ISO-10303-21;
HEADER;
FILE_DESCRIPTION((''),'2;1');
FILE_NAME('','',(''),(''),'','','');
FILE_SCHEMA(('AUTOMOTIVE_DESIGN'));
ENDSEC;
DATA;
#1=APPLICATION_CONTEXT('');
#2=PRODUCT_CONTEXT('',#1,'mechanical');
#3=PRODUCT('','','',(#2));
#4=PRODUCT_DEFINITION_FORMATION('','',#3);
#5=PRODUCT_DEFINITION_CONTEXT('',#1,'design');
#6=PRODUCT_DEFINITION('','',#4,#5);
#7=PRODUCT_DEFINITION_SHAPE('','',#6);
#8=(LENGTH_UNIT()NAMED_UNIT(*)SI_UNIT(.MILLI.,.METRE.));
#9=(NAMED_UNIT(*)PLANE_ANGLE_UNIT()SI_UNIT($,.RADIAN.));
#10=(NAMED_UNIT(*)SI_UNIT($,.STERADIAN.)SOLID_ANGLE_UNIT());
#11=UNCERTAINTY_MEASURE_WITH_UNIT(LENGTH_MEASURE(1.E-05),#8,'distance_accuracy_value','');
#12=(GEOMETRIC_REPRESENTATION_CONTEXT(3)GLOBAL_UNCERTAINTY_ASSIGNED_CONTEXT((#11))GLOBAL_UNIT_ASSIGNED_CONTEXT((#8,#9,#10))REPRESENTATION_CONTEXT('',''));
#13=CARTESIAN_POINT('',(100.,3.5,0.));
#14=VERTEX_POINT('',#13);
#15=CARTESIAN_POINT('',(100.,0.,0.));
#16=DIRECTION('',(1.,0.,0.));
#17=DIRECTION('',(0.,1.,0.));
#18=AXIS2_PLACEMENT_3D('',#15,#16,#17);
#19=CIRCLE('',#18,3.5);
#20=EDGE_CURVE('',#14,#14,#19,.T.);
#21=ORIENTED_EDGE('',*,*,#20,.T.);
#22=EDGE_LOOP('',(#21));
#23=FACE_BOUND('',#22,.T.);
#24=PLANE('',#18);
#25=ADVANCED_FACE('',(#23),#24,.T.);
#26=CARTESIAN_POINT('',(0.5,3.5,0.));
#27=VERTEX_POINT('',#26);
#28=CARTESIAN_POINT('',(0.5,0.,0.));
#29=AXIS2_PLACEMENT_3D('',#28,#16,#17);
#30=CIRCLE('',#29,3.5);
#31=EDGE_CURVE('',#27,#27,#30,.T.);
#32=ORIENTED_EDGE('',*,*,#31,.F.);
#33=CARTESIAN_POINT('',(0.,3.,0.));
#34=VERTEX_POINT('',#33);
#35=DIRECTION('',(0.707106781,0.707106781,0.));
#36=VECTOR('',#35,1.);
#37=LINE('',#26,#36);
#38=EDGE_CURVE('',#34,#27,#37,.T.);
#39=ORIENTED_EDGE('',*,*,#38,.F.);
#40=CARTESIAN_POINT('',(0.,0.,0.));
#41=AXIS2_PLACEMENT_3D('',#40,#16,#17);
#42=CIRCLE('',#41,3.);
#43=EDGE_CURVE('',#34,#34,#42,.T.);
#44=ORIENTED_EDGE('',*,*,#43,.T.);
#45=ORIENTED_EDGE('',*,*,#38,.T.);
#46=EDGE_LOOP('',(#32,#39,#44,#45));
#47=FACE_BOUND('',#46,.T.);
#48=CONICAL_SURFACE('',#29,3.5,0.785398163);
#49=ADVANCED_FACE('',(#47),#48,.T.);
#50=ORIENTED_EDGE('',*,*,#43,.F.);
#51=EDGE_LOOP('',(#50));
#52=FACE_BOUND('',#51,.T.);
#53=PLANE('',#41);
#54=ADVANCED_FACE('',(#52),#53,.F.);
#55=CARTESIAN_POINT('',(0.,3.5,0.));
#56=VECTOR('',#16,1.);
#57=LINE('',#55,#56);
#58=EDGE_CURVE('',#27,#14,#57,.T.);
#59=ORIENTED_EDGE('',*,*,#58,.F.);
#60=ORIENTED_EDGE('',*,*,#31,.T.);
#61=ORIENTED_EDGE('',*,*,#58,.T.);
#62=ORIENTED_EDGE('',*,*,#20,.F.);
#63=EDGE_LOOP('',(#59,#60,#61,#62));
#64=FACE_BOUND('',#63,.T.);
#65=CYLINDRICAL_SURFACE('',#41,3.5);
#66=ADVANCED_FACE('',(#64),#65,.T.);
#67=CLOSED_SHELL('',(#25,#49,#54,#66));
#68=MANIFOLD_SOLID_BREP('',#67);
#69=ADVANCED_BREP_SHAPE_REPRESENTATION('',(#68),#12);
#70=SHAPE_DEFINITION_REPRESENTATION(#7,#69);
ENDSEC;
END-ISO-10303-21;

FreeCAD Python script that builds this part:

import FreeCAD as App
import Part
import Sketcher

V = App.Vector
Q = App.Units.Quantity


def edges_at(feature, points):
    """Names of the edges that pass closest to the given points."""
    edges = feature.Shape.Edges
    near = lambda p: min(range(len(edges)), key=lambda i: edges[i].distToShape(Part.Vertex(*p))[0])
    return sorted({f"Edge{near(p) + 1}" for p in points})

doc = App.newDocument("Part")
body = doc.addObject("PartDesign::Body", "Body")

# Sketch on XY plane
sketch1 = body.newObject("Sketcher::SketchObject", "Sketch")
sketch1.AttachmentSupport = (doc.getObject("XY_Plane"), [""])
sketch1.MapMode = "FlatFace"
sketch1.addGeometry(Part.LineSegment(V(0, 3.5, 0), V(0, 0, 0)), False)
sketch1.addGeometry(Part.LineSegment(V(0, 0, 0), V(100, 0, 0)), False)
sketch1.addGeometry(Part.LineSegment(V(100, 0, 0), V(100, 3.5, 0)), False)
sketch1.addGeometry(Part.LineSegment(V(100, 3.5, 0), V(0, 3.5, 0)), False)
sketch1.addConstraint(Sketcher.Constraint("Coincident", 0, 2, 1, 1))
sketch1.addConstraint(Sketcher.Constraint("Coincident", 1, 2, 2, 1))
sketch1.addConstraint(Sketcher.Constraint("Coincident", 2, 2, 3, 1))
sketch1.addConstraint(Sketcher.Constraint("Coincident", 3, 2, 0, 1))
sketch1.addConstraint(Sketcher.Constraint("Vertical", 0))
sketch1.addConstraint(Sketcher.Constraint("Horizontal", 1))
sketch1.addConstraint(Sketcher.Constraint("Vertical", 2))
sketch1.addConstraint(Sketcher.Constraint("Horizontal", 3))
sketch1.addConstraint(Sketcher.Constraint("Coincident", 0, 2, -1, 1))
sketch1.addConstraint(Sketcher.Constraint("DistanceX", 1, 1, 1, 2, Q("100 mm")))
sketch1.addConstraint(Sketcher.Constraint("DistanceY", 0, 2, 0, 1, Q("3.5 mm")))
revolution = body.newObject("PartDesign::Revolution", "Revolution")
revolution.Profile = sketch1
revolution.ReferenceAxis = (sketch1, ["H_Axis"])
revolution.Angle = 360
doc.recompute()

chamfer = body.newObject("PartDesign::Chamfer", "Chamfer")
chamfer.Base = (revolution, edges_at(revolution, [(0, -3.5, 0)]))
chamfer.Size = 0.5

doc.recompute()
